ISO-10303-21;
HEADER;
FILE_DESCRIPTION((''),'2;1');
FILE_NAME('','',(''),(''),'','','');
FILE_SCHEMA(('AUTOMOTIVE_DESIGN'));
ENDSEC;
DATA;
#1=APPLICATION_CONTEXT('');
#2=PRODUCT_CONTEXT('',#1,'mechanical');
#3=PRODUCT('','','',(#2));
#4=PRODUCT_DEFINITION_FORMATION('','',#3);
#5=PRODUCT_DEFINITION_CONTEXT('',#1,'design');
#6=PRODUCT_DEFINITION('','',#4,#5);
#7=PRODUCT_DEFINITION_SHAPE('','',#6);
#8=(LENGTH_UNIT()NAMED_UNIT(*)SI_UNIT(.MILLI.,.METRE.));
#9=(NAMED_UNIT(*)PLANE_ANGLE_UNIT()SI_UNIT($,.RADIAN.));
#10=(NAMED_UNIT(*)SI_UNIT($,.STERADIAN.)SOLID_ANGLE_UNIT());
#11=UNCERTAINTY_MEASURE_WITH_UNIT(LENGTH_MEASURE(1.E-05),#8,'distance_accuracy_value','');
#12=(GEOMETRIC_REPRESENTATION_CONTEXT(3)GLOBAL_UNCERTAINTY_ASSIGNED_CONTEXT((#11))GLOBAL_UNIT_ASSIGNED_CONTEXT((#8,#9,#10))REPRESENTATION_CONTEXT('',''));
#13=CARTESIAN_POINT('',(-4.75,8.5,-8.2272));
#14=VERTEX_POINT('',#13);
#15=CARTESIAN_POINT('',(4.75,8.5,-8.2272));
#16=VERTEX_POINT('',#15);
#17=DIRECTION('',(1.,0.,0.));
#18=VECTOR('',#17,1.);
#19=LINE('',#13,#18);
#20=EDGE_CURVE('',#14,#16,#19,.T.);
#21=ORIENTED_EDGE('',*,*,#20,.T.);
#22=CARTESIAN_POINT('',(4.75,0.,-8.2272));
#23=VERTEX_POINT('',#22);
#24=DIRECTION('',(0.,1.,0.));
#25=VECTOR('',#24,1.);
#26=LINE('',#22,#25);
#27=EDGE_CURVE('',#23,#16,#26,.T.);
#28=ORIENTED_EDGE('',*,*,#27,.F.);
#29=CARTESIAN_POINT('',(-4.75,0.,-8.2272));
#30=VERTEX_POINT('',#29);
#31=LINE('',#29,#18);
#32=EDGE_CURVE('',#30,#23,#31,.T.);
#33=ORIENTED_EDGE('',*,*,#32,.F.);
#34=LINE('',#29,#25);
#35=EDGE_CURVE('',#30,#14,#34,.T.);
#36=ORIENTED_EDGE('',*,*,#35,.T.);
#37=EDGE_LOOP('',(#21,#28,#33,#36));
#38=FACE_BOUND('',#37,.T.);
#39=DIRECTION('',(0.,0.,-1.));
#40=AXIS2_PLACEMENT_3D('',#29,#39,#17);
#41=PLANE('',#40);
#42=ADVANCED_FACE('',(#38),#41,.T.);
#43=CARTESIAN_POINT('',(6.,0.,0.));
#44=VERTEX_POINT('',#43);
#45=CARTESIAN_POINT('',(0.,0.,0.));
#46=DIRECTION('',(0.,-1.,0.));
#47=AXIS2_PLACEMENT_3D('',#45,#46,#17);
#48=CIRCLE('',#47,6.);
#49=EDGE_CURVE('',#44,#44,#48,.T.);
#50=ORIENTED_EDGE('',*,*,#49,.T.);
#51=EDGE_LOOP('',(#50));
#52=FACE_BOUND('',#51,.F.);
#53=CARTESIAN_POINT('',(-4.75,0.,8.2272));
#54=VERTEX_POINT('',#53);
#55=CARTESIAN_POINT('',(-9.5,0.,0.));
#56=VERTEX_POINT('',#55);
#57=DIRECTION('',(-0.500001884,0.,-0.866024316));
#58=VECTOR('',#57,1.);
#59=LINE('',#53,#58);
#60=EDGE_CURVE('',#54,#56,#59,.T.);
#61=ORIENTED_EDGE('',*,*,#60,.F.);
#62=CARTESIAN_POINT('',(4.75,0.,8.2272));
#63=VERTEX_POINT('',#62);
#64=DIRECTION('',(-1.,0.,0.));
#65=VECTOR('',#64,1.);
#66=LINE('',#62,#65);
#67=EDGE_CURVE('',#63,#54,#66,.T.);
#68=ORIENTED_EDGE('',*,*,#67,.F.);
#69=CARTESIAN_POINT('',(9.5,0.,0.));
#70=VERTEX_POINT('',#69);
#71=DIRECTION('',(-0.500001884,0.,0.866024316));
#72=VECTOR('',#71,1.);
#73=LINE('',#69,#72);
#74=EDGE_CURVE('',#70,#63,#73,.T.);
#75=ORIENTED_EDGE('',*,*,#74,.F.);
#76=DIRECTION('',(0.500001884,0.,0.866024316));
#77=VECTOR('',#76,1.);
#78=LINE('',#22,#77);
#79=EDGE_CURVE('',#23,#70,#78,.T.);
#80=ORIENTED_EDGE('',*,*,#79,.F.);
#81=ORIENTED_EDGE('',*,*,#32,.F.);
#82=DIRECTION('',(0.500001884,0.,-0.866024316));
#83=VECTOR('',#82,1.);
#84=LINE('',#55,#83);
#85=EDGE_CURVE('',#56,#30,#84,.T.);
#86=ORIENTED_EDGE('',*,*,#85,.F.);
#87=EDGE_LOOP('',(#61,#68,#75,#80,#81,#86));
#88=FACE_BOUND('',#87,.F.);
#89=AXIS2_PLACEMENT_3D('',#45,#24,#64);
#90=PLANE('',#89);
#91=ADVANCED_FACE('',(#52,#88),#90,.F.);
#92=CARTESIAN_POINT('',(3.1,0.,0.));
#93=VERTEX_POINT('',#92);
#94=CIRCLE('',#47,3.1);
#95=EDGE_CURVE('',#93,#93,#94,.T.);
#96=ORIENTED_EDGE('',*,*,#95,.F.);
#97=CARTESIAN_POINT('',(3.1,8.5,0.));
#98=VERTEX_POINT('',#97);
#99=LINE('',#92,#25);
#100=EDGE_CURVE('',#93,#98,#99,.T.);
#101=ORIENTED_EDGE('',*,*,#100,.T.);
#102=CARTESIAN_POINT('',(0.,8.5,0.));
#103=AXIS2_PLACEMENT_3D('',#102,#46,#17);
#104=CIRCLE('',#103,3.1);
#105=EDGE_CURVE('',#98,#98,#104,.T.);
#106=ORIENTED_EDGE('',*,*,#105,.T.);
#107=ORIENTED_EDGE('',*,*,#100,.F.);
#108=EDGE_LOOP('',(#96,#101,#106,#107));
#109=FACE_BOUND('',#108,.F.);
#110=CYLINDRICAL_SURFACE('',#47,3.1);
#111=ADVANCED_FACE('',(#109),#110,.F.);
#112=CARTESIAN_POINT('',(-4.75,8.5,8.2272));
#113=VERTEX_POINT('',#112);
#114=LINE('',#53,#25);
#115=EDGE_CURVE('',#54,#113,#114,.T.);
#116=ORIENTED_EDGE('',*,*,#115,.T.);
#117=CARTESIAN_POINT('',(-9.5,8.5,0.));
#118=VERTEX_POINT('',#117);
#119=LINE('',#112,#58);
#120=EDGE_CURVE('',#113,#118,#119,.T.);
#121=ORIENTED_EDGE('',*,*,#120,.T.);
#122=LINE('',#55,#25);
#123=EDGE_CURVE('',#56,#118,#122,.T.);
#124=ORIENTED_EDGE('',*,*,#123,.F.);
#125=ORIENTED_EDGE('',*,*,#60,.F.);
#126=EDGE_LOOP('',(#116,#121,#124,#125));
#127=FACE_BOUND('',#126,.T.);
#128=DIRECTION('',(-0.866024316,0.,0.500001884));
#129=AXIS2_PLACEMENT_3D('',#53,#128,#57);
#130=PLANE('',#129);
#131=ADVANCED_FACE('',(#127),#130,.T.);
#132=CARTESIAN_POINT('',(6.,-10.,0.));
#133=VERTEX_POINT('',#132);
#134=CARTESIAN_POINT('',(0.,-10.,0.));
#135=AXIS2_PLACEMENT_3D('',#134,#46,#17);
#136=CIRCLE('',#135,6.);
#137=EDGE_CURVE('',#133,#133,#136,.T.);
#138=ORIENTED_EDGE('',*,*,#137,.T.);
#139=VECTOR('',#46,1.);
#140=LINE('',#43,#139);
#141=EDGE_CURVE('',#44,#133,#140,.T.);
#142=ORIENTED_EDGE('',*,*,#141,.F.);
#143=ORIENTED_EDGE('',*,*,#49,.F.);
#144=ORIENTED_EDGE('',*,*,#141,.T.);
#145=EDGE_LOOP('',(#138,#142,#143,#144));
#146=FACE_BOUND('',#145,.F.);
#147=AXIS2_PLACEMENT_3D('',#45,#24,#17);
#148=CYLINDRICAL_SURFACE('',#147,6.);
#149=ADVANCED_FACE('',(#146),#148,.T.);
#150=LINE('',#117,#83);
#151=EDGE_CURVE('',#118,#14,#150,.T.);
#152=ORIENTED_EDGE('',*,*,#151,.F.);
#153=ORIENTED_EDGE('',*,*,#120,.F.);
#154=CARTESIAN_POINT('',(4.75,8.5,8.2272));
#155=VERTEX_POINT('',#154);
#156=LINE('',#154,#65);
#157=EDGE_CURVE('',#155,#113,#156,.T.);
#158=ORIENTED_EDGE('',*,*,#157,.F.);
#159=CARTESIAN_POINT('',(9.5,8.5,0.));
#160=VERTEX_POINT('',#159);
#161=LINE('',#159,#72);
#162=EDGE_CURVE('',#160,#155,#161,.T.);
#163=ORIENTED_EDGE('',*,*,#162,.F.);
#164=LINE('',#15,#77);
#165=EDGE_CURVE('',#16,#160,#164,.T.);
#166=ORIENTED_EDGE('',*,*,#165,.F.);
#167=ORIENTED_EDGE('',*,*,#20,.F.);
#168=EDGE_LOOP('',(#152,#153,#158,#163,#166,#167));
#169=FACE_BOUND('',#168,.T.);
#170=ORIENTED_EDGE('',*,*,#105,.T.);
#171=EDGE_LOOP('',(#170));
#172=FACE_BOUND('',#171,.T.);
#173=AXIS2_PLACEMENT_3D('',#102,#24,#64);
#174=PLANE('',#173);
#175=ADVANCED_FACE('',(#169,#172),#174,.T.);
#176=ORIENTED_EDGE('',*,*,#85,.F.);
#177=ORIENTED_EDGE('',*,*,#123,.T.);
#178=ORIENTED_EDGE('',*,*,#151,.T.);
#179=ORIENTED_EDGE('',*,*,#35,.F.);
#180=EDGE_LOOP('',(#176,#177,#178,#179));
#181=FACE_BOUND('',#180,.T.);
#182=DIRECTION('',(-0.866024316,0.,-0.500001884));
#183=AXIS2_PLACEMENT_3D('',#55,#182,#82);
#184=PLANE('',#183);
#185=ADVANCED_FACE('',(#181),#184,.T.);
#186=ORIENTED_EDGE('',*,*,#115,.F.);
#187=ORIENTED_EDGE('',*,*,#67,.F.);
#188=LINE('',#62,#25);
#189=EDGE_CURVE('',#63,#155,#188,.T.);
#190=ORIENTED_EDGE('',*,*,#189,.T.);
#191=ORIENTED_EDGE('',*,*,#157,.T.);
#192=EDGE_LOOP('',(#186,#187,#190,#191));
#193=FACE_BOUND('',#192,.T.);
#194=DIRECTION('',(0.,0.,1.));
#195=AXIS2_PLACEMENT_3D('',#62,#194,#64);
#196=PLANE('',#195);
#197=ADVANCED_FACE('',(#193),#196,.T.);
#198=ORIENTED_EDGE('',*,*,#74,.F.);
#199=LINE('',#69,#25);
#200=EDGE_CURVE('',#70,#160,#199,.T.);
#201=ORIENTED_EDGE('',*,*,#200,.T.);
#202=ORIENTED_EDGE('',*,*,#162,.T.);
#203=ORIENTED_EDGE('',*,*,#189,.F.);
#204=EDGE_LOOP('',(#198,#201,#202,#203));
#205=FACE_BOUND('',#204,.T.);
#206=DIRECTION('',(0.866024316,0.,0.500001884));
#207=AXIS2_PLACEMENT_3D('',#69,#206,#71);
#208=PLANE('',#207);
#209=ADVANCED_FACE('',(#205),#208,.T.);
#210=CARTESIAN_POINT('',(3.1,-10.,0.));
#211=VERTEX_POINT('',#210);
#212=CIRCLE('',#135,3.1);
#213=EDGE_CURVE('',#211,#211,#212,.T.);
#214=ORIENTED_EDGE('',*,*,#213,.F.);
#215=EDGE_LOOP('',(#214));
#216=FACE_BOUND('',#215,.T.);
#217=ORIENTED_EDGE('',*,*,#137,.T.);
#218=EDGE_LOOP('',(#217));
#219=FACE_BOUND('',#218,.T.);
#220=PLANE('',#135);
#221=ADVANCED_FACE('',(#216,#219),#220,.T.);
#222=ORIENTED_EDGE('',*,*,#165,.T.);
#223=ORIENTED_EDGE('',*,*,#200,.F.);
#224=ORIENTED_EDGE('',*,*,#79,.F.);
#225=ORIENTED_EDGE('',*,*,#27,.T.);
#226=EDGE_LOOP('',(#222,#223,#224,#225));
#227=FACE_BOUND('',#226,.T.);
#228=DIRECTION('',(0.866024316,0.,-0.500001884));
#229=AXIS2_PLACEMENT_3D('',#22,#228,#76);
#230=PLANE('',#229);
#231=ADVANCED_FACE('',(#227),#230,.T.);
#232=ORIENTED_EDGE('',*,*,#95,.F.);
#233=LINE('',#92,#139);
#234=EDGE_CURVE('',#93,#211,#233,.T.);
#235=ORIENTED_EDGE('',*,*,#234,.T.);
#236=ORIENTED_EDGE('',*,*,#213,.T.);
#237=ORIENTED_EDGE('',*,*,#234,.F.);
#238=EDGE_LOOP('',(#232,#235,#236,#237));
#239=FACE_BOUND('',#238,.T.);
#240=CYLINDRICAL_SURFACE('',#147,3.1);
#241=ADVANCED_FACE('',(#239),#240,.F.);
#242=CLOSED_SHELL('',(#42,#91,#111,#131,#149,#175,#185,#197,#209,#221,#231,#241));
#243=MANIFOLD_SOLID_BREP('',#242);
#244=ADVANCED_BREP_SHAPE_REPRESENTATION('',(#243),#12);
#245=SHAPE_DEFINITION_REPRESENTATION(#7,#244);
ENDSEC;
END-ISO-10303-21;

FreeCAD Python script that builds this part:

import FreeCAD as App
import Part
import Sketcher

V = App.Vector
Q = App.Units.Quantity

doc = App.newDocument("Part")
body = doc.addObject("PartDesign::Body", "Body")

# Sketch on XZ plane
sketch1 = body.newObject("Sketcher::SketchObject", "Sketch")
sketch1.AttachmentSupport = (doc.getObject("XZ_Plane"), [""])
sketch1.MapMode = "FlatFace"
sketch1.addGeometry(Part.LineSegment(V(5, 8, 0), V(10, 0, 0)), False)
sketch1.addGeometry(Part.LineSegment(V(10, 0, 0), V(5, -8, 0)), False)
sketch1.addGeometry(Part.LineSegment(V(5, -8, 0), V(-5, -8, 0)), False)
sketch1.addGeometry(Part.LineSegment(V(-5, -8, 0), V(-10, 0, 0)), False)
sketch1.addGeometry(Part.LineSegment(V(-10, 0, 0), V(-5, 8, 0)), False)
sketch1.addGeometry(Part.LineSegment(V(-5, 8, 0), V(5, 8, 0)), False)
sketch1.addConstraint(Sketcher.Constraint("Coincident", 0, 2, 1, 1))
sketch1.addConstraint(Sketcher.Constraint("Coincident", 1, 2, 2, 1))
sketch1.addConstraint(Sketcher.Constraint("Coincident", 2, 2, 3, 1))
sketch1.addConstraint(Sketcher.Constraint("Coincident", 3, 2, 4, 1))
sketch1.addConstraint(Sketcher.Constraint("Coincident", 4, 2, 5, 1))
sketch1.addConstraint(Sketcher.Constraint("Coincident", 5, 2, 0, 1))
sketch1.addConstraint(Sketcher.Constraint("Horizontal", 2))
sketch1.addConstraint(Sketcher.Constraint("Horizontal", 5))
sketch1.addConstraint(Sketcher.Constraint("Symmetric", 0, 2, 3, 2, -1, 1))
sketch1.addConstraint(Sketcher.Constraint("Symmetric", 1, 2, 4, 2, -1, 1))
sketch1.addConstraint(Sketcher.Constraint("PointOnObject", 0, 2, -1))
sketch1.addConstraint(Sketcher.Constraint("Parallel", 0, 3))
sketch1.addConstraint(Sketcher.Constraint("Vertical", 2, 2, 4, 2))
sketch1.addConstraint(Sketcher.Constraint("DistanceX", 2, 2, 2, 1, Q("9.5 mm")))
sketch1.addConstraint(Sketcher.Constraint("Distance", 0, Q("9.5 mm")))
sketch1.addConstraint(Sketcher.Constraint("DistanceX", -1, 1, 0, 2, Q("9.5 mm")))
pad1 = body.newObject("PartDesign::Pad", "Pad")
pad1.Profile = sketch1
pad1.Length = 8.5
pad1.Reversed = True

# Sketch on XZ plane
sketch2 = body.newObject("Sketcher::SketchObject", "Sketch001")
sketch2.AttachmentSupport = (doc.getObject("XZ_Plane"), [""])
sketch2.MapMode = "FlatFace"
sketch2.addGeometry(Part.Circle(V(0, 0, 0), V(0, 0, 1), 6), False)
sketch2.addGeometry(Part.Circle(V(0, 0, 0), V(0, 0, 1), 3.1), False)
sketch2.addConstraint(Sketcher.Constraint("Coincident", 0, 3, -1, 1))
sketch2.addConstraint(Sketcher.Constraint("Coincident", 1, 3, -1, 1))
sketch2.addConstraint(Sketcher.Constraint("Diameter", 0, Q("12 mm")))
sketch2.addConstraint(Sketcher.Constraint("Diameter", 1, Q("6.2 mm")))
pad2 = body.newObject("PartDesign::Pad", "Pad001")
pad2.Profile = sketch2
pad2.Length = 10

# Sketch on XZ plane
sketch3 = body.newObject("Sketcher::SketchObject", "Sketch002")
sketch3.AttachmentSupport = (doc.getObject("XZ_Plane"), [""])
sketch3.MapMode = "FlatFace"
sketch3.addGeometry(Part.Circle(V(0, 0, 0), V(0, 0, 1), 3.1), False)
sketch3.addConstraint(Sketcher.Constraint("Coincident", 0, 3, -1, 1))
sketch3.addConstraint(Sketcher.Constraint("Diameter", 0, Q("6.2 mm")))
pocket1 = body.newObject("PartDesign::Pocket", "Pocket")
pocket1.Profile = sketch3
pocket1.Type = "ThroughAll"

doc.recompute()
